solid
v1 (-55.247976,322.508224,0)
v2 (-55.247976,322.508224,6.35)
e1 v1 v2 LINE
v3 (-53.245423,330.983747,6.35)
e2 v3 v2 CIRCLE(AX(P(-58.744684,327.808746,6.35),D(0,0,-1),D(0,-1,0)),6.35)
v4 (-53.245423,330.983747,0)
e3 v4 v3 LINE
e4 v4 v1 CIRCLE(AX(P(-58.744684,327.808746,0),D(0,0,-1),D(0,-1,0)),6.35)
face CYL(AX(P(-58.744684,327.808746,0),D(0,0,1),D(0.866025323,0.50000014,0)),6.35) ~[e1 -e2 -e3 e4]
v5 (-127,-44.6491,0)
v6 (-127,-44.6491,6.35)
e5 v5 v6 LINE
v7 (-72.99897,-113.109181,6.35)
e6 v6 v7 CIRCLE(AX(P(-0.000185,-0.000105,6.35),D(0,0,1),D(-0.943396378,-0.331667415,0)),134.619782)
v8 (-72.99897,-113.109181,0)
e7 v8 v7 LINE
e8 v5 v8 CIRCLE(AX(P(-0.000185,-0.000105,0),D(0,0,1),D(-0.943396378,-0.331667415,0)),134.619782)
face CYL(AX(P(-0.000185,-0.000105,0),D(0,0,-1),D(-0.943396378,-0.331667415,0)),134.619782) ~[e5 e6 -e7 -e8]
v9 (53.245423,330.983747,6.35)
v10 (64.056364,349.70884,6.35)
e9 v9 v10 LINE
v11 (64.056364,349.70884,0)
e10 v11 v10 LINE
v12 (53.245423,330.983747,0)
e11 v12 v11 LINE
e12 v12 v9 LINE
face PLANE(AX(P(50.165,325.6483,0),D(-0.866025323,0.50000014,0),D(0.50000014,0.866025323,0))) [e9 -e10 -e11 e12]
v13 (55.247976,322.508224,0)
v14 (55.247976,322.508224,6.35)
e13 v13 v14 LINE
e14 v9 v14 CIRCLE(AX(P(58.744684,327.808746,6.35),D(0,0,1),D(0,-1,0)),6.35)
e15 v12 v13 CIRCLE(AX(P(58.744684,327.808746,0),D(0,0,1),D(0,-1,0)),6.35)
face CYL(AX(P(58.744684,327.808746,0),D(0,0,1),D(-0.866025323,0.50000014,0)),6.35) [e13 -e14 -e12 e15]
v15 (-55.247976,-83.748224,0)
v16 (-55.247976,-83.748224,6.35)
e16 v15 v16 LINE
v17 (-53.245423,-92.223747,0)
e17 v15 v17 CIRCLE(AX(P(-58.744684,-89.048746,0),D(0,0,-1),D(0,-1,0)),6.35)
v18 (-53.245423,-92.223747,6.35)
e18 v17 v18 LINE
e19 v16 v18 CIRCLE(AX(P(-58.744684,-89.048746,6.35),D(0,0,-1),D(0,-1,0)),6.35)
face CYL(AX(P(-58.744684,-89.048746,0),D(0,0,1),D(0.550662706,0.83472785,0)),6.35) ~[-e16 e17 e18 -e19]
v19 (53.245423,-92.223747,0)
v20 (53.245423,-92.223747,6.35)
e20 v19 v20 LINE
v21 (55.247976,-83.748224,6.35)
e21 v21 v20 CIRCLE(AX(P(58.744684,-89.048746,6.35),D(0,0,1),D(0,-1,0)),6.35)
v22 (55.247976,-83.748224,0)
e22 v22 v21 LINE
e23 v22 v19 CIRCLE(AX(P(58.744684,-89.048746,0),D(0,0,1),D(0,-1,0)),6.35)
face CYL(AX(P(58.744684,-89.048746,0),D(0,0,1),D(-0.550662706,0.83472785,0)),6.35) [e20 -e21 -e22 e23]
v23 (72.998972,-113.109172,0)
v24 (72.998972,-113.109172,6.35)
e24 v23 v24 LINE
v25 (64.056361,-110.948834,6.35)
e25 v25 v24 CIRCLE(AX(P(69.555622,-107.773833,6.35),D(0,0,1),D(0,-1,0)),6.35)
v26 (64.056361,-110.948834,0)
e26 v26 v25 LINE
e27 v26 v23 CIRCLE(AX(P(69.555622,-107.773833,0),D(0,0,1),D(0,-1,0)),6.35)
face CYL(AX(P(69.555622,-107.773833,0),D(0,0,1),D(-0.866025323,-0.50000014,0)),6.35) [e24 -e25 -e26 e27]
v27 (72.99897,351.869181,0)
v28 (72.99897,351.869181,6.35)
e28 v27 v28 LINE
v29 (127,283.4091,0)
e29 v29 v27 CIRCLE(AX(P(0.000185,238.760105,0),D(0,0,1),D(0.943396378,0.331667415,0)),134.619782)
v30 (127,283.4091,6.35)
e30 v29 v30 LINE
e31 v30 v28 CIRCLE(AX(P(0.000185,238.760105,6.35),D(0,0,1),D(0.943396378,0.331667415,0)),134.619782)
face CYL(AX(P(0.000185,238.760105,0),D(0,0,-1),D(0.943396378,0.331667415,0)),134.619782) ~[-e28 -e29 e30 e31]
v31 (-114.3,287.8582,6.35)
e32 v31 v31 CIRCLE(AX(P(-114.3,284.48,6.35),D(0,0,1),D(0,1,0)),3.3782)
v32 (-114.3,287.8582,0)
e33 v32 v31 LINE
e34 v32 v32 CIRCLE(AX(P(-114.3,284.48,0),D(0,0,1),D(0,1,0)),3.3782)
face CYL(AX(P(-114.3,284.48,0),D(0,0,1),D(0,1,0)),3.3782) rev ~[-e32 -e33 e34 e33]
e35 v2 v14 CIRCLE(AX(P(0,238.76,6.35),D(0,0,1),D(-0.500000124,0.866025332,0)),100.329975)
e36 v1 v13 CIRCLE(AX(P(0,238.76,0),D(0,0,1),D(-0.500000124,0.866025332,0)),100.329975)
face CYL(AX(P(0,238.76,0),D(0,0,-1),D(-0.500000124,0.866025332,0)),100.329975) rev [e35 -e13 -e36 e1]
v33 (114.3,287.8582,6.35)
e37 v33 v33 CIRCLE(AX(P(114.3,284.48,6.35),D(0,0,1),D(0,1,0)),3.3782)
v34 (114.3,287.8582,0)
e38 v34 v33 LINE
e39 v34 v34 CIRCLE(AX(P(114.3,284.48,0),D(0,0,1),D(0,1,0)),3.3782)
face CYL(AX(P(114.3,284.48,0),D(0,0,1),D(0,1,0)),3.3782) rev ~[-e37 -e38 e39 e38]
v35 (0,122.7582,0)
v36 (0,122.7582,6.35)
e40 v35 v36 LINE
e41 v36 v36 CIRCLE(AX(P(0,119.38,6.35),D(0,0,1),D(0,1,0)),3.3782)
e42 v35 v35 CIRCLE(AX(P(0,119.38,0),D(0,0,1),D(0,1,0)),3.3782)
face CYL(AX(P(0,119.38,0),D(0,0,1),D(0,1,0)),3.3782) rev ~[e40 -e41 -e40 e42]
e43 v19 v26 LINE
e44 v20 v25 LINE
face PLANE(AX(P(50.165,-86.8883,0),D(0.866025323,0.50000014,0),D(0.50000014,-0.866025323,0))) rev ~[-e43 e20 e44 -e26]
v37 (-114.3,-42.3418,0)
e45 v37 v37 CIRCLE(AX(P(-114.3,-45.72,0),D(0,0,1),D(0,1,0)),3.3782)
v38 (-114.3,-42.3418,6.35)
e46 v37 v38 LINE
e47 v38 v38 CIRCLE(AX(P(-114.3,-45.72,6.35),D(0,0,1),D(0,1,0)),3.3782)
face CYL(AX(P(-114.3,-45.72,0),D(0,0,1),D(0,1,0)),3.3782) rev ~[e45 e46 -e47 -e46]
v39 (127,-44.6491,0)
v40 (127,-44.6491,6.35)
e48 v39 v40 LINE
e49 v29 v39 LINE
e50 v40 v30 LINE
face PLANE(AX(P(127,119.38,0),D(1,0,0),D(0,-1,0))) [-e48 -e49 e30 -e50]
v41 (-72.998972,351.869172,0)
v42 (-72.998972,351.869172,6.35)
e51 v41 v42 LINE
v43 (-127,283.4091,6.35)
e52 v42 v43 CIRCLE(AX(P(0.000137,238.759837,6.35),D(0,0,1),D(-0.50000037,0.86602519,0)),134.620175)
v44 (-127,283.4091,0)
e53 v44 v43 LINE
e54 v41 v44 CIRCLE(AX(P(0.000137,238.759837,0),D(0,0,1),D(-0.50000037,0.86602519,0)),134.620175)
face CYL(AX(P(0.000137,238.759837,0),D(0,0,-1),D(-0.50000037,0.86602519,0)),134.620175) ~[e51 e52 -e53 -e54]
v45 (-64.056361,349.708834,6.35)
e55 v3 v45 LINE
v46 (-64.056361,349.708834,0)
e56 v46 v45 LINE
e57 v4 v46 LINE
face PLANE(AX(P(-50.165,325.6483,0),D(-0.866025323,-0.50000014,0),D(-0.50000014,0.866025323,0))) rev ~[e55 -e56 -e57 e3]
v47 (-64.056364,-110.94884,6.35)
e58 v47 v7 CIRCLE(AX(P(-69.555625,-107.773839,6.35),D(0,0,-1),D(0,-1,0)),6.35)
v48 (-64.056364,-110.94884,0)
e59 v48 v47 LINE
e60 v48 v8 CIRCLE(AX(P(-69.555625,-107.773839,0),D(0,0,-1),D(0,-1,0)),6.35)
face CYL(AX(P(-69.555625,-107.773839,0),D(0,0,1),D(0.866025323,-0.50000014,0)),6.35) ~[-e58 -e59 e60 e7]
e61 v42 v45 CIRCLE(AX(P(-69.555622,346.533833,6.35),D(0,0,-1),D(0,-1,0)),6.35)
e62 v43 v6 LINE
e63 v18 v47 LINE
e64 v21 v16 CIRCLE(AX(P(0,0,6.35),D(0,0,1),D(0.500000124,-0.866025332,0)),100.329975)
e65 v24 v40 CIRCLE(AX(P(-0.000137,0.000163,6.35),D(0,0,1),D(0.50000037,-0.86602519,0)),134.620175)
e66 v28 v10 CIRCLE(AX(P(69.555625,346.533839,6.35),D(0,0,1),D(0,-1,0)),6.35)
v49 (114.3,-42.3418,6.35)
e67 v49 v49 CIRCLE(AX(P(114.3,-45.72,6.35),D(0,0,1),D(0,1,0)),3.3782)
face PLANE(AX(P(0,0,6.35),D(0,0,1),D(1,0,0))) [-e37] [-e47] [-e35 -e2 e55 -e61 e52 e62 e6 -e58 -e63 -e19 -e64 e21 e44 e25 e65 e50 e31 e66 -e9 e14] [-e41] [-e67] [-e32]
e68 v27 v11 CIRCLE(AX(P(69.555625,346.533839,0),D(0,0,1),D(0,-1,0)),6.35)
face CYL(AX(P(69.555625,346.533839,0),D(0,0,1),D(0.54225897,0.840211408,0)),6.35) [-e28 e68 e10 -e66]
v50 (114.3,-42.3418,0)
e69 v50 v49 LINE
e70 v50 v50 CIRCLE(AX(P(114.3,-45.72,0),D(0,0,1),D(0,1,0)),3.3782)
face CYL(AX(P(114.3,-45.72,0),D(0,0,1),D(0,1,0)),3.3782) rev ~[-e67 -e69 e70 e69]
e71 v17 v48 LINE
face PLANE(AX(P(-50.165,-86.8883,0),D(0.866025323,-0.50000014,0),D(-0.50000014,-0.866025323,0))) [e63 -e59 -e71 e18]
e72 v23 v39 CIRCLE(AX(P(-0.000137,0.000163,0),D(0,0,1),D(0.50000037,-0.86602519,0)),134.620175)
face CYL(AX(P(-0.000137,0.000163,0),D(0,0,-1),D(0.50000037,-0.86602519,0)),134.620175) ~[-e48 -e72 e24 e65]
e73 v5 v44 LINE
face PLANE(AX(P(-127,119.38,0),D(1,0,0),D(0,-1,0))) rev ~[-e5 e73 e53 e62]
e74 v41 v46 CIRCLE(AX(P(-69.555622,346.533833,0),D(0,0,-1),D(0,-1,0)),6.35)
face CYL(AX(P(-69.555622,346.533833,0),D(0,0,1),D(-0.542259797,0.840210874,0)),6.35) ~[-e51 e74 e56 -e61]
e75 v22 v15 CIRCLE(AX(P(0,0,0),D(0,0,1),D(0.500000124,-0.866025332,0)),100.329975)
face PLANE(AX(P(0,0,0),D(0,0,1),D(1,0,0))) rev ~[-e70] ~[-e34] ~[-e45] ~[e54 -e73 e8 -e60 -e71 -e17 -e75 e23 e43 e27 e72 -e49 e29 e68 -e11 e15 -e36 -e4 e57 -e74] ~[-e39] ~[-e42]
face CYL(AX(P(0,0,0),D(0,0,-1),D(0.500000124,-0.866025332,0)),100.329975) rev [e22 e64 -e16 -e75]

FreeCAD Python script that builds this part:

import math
import FreeCAD as App
import Part
import Sketcher
Q = App.Units.Quantity


def edges_at(feature, points):
    """Names of the edges that pass closest to the given points."""
    edges = feature.Shape.Edges
    near = lambda p: min(range(len(edges)), key=lambda i: edges[i].distToShape(Part.Vertex(*p))[0])
    return sorted({f"Edge{near(p) + 1}" for p in points})

doc = App.newDocument("Part")
body = doc.addObject("PartDesign::Body", "Body")

# Sketch on XY plane
sketch1 = doc.addObject("Sketcher::SketchObject", "Sketch")
body.addObject(sketch1)
sketch1.AttachmentSupport = (doc.XY_Plane, [""])
sketch1.MapMode = "FlatFace"
sketch1.addGeometry(Part.ArcOfCircle(Part.Circle(App.Vector(0, 0, 0), App.Vector(0, 0, 1), 100), math.radians(-60), math.radians(240)), False)
sketch1.addGeometry(Part.LineSegment(App.Vector(50, -87, 0), App.Vector(67, -117, 0)), False)
sketch1.addGeometry(Part.ArcOfCircle(Part.Circle(App.Vector(0, 0, 0), App.Vector(0, 0, 1), 135), math.radians(-60), math.radians(-19)), False)
sketch1.addGeometry(Part.LineSegment(App.Vector(127, -45, 0), App.Vector(127, 283, 0)), False)
sketch1.addGeometry(Part.ArcOfCircle(Part.Circle(App.Vector(0, 239, 0), App.Vector(0, 0, 1), 135), math.radians(19), math.radians(60)), False)
sketch1.addGeometry(Part.LineSegment(App.Vector(67, 355, 0), App.Vector(50, 326, 0)), False)
sketch1.addGeometry(Part.ArcOfCircle(Part.Circle(App.Vector(0, 239, 0), App.Vector(0, 0, 1), 100), math.radians(120), math.radians(420)), False)
sketch1.addGeometry(Part.LineSegment(App.Vector(-50, 326, 0), App.Vector(-67, 355, 0)), False)
sketch1.addGeometry(Part.ArcOfCircle(Part.Circle(App.Vector(0, 239, 0), App.Vector(0, 0, 1), 135), math.radians(120), math.radians(161)), False)
sketch1.addGeometry(Part.LineSegment(App.Vector(-127, 283, 0), App.Vector(-127, -45, 0)), False)
sketch1.addGeometry(Part.ArcOfCircle(Part.Circle(App.Vector(0, 0, 0), App.Vector(0, 0, 1), 135), math.radians(-161), math.radians(-120)), False)
sketch1.addGeometry(Part.LineSegment(App.Vector(-67, -117, 0), App.Vector(-50, -87, 0)), False)
sketch1.addConstraint(Sketcher.Constraint("Coincident", 0, 1, 1, 1))
sketch1.addConstraint(Sketcher.Constraint("Coincident", 1, 2, 2, 1))
sketch1.addConstraint(Sketcher.Constraint("Coincident", 2, 2, 3, 1))
sketch1.addConstraint(Sketcher.Constraint("Coincident", 3, 2, 4, 1))
sketch1.addConstraint(Sketcher.Constraint("Coincident", 4, 2, 5, 1))
sketch1.addConstraint(Sketcher.Constraint("Coincident", 5, 2, 6, 2))
sketch1.addConstraint(Sketcher.Constraint("Coincident", 6, 1, 7, 1))
sketch1.addConstraint(Sketcher.Constraint("Coincident", 7, 2, 8, 1))
sketch1.addConstraint(Sketcher.Constraint("Coincident", 8, 2, 9, 1))
sketch1.addConstraint(Sketcher.Constraint("Coincident", 9, 2, 10, 1))
sketch1.addConstraint(Sketcher.Constraint("Coincident", 10, 2, 11, 1))
sketch1.addConstraint(Sketcher.Constraint("Coincident", 11, 2, 0, 2))
sketch1.addConstraint(Sketcher.Constraint("Vertical", 3))
sketch1.addConstraint(Sketcher.Constraint("Vertical", 9))
sketch1.addConstraint(Sketcher.Constraint("Coincident", 0, 3, -1, 1))
sketch1.addConstraint(Sketcher.Constraint("Coincident", 2, 3, -1, 1))
sketch1.addConstraint(Sketcher.Constraint("Coincident", 10, 3, -1, 1))
sketch1.addConstraint(Sketcher.Constraint("Coincident", 6, 3, 4, 3))
sketch1.addConstraint(Sketcher.Constraint("Coincident", 8, 3, 4, 3))
sketch1.addConstraint(Sketcher.Constraint("Equal", 2, 4))
sketch1.addConstraint(Sketcher.Constraint("Equal", 0, 6))
sketch1.addConstraint(Sketcher.Constraint("Equal", 4, 8))
sketch1.addConstraint(Sketcher.Constraint("Equal", 8, 10))
sketch1.addConstraint(Sketcher.Constraint("Symmetric", 5, 2, 6, 1, -2))
sketch1.addConstraint(Sketcher.Constraint("Parallel", 1, 7))
sketch1.addConstraint(Sketcher.Constraint("Parallel", 5, 11))
sketch1.addConstraint(Sketcher.Constraint("Horizontal", 4, 2, 7, 2))
sketch1.addConstraint(Sketcher.Constraint("Horizontal", 3, 2, 8, 2))
sketch1.addConstraint(Sketcher.Constraint("Horizontal", 1, 2, 10, 2))
sketch1.addConstraint(Sketcher.Constraint("Vertical", 1, 2, 4, 2))
sketch1.addConstraint(Sketcher.Constraint("Radius", 2, Q("5.3 in")))
sketch1.addConstraint(Sketcher.Constraint("Radius", 0, Q("3.95 in")))
sketch1.addConstraint(Sketcher.Constraint("DistanceX", -1, 1, 2, 2, Q("5 in")))
sketch1.addConstraint(Sketcher.Constraint("Angle", 1, Q("-60 deg")))
sketch1.addConstraint(Sketcher.Constraint("DistanceY", -1, 1, 4, 3, Q("9.4 in")))
sketch1.addConstraint(Sketcher.Constraint("DistanceX", -1, 1, 1, 2, Q("2.65 in")))
pad1 = doc.addObject("PartDesign::Pad", "Pad")
body.addObject(pad1)
pad1.Profile = sketch1
pad1.Length = Q("0.25 in")

# Sketch on XY plane
sketch2 = doc.addObject("Sketcher::SketchObject", "Sketch001")
body.addObject(sketch2)
sketch2.AttachmentSupport = (doc.XY_Plane, [""])
sketch2.MapMode = "FlatFace"
sketch2.addGeometry(Part.Circle(App.Vector(114.3, -45.7, 0), App.Vector(0, 0, 1), 3.4), False)
sketch2.addGeometry(Part.Circle(App.Vector(0, 119.4, 0), App.Vector(0, 0, 1), 3.4), False)
sketch2.addGeometry(Part.Circle(App.Vector(-114.3, -45.7, 0), App.Vector(0, 0, 1), 3.4), False)
sketch2.addGeometry(Part.Circle(App.Vector(114.3, 284.5, 0), App.Vector(0, 0, 1), 3.4), False)
sketch2.addGeometry(Part.Circle(App.Vector(-114.3, 284.5, 0), App.Vector(0, 0, 1), 3.4), False)
sketch2.addConstraint(Sketcher.Constraint("Equal", 0, 1))
sketch2.addConstraint(Sketcher.Constraint("Equal", 1, 2))
sketch2.addConstraint(Sketcher.Constraint("Equal", 2, 3))
sketch2.addConstraint(Sketcher.Constraint("Equal", 3, 4))
sketch2.addConstraint(Sketcher.Constraint("Symmetric", 0, 3, 2, 3, -2))
sketch2.addConstraint(Sketcher.Constraint("Symmetric", 3, 3, 4, 3, -2))
sketch2.addConstraint(Sketcher.Constraint("PointOnObject", 1, 3, -2))
sketch2.addConstraint(Sketcher.Constraint("Vertical", 0, 3, 3, 3))
sketch2.addConstraint(Sketcher.Constraint("Diameter", 0, Q("0.266 in")))
sketch2.addConstraint(Sketcher.Constraint("DistanceX", 2, 3, 0, 3, Q("9 in")))
sketch2.addConstraint(Sketcher.Constraint("DistanceY", 0, 3, 3, 3, Q("13 in")))
sketch2.addConstraint(Sketcher.Constraint("DistanceY", 0, 3, -1, 1, Q("1.8 in")))
sketch2.addConstraint(Sketcher.Constraint("DistanceY", -1, 1, 1, 3, Q("4.7 in")))
doc.recompute()
hole = doc.addObject("PartDesign::Hole", "Hole")
body.addObject(hole)
hole.Profile = sketch2
hole.ThreadType = "None"
hole.Diameter = Q("0.266 in")
hole.DepthType = "ThroughAll"
hole.Reversed = True
doc.recompute()

fillet = doc.addObject("PartDesign::Fillet", "Fillet")
body.addObject(fillet)
fillet.Base = (hole, edges_at(hole, [
    (50.165, -86.888, 3.175),
    (-50.165, -86.888, 3.175),
    (67.31, 355.344, 3.175),
    (-67.31, 355.344, 3.175),
    (50.165, 325.648, 3.175),
    (-50.165, 325.648, 3.175),
    (67.31, -116.584, 3.175),
    (-67.31, -116.584, 3.175),
]))
fillet.Radius = Q("0.25 in")

doc.recompute()
